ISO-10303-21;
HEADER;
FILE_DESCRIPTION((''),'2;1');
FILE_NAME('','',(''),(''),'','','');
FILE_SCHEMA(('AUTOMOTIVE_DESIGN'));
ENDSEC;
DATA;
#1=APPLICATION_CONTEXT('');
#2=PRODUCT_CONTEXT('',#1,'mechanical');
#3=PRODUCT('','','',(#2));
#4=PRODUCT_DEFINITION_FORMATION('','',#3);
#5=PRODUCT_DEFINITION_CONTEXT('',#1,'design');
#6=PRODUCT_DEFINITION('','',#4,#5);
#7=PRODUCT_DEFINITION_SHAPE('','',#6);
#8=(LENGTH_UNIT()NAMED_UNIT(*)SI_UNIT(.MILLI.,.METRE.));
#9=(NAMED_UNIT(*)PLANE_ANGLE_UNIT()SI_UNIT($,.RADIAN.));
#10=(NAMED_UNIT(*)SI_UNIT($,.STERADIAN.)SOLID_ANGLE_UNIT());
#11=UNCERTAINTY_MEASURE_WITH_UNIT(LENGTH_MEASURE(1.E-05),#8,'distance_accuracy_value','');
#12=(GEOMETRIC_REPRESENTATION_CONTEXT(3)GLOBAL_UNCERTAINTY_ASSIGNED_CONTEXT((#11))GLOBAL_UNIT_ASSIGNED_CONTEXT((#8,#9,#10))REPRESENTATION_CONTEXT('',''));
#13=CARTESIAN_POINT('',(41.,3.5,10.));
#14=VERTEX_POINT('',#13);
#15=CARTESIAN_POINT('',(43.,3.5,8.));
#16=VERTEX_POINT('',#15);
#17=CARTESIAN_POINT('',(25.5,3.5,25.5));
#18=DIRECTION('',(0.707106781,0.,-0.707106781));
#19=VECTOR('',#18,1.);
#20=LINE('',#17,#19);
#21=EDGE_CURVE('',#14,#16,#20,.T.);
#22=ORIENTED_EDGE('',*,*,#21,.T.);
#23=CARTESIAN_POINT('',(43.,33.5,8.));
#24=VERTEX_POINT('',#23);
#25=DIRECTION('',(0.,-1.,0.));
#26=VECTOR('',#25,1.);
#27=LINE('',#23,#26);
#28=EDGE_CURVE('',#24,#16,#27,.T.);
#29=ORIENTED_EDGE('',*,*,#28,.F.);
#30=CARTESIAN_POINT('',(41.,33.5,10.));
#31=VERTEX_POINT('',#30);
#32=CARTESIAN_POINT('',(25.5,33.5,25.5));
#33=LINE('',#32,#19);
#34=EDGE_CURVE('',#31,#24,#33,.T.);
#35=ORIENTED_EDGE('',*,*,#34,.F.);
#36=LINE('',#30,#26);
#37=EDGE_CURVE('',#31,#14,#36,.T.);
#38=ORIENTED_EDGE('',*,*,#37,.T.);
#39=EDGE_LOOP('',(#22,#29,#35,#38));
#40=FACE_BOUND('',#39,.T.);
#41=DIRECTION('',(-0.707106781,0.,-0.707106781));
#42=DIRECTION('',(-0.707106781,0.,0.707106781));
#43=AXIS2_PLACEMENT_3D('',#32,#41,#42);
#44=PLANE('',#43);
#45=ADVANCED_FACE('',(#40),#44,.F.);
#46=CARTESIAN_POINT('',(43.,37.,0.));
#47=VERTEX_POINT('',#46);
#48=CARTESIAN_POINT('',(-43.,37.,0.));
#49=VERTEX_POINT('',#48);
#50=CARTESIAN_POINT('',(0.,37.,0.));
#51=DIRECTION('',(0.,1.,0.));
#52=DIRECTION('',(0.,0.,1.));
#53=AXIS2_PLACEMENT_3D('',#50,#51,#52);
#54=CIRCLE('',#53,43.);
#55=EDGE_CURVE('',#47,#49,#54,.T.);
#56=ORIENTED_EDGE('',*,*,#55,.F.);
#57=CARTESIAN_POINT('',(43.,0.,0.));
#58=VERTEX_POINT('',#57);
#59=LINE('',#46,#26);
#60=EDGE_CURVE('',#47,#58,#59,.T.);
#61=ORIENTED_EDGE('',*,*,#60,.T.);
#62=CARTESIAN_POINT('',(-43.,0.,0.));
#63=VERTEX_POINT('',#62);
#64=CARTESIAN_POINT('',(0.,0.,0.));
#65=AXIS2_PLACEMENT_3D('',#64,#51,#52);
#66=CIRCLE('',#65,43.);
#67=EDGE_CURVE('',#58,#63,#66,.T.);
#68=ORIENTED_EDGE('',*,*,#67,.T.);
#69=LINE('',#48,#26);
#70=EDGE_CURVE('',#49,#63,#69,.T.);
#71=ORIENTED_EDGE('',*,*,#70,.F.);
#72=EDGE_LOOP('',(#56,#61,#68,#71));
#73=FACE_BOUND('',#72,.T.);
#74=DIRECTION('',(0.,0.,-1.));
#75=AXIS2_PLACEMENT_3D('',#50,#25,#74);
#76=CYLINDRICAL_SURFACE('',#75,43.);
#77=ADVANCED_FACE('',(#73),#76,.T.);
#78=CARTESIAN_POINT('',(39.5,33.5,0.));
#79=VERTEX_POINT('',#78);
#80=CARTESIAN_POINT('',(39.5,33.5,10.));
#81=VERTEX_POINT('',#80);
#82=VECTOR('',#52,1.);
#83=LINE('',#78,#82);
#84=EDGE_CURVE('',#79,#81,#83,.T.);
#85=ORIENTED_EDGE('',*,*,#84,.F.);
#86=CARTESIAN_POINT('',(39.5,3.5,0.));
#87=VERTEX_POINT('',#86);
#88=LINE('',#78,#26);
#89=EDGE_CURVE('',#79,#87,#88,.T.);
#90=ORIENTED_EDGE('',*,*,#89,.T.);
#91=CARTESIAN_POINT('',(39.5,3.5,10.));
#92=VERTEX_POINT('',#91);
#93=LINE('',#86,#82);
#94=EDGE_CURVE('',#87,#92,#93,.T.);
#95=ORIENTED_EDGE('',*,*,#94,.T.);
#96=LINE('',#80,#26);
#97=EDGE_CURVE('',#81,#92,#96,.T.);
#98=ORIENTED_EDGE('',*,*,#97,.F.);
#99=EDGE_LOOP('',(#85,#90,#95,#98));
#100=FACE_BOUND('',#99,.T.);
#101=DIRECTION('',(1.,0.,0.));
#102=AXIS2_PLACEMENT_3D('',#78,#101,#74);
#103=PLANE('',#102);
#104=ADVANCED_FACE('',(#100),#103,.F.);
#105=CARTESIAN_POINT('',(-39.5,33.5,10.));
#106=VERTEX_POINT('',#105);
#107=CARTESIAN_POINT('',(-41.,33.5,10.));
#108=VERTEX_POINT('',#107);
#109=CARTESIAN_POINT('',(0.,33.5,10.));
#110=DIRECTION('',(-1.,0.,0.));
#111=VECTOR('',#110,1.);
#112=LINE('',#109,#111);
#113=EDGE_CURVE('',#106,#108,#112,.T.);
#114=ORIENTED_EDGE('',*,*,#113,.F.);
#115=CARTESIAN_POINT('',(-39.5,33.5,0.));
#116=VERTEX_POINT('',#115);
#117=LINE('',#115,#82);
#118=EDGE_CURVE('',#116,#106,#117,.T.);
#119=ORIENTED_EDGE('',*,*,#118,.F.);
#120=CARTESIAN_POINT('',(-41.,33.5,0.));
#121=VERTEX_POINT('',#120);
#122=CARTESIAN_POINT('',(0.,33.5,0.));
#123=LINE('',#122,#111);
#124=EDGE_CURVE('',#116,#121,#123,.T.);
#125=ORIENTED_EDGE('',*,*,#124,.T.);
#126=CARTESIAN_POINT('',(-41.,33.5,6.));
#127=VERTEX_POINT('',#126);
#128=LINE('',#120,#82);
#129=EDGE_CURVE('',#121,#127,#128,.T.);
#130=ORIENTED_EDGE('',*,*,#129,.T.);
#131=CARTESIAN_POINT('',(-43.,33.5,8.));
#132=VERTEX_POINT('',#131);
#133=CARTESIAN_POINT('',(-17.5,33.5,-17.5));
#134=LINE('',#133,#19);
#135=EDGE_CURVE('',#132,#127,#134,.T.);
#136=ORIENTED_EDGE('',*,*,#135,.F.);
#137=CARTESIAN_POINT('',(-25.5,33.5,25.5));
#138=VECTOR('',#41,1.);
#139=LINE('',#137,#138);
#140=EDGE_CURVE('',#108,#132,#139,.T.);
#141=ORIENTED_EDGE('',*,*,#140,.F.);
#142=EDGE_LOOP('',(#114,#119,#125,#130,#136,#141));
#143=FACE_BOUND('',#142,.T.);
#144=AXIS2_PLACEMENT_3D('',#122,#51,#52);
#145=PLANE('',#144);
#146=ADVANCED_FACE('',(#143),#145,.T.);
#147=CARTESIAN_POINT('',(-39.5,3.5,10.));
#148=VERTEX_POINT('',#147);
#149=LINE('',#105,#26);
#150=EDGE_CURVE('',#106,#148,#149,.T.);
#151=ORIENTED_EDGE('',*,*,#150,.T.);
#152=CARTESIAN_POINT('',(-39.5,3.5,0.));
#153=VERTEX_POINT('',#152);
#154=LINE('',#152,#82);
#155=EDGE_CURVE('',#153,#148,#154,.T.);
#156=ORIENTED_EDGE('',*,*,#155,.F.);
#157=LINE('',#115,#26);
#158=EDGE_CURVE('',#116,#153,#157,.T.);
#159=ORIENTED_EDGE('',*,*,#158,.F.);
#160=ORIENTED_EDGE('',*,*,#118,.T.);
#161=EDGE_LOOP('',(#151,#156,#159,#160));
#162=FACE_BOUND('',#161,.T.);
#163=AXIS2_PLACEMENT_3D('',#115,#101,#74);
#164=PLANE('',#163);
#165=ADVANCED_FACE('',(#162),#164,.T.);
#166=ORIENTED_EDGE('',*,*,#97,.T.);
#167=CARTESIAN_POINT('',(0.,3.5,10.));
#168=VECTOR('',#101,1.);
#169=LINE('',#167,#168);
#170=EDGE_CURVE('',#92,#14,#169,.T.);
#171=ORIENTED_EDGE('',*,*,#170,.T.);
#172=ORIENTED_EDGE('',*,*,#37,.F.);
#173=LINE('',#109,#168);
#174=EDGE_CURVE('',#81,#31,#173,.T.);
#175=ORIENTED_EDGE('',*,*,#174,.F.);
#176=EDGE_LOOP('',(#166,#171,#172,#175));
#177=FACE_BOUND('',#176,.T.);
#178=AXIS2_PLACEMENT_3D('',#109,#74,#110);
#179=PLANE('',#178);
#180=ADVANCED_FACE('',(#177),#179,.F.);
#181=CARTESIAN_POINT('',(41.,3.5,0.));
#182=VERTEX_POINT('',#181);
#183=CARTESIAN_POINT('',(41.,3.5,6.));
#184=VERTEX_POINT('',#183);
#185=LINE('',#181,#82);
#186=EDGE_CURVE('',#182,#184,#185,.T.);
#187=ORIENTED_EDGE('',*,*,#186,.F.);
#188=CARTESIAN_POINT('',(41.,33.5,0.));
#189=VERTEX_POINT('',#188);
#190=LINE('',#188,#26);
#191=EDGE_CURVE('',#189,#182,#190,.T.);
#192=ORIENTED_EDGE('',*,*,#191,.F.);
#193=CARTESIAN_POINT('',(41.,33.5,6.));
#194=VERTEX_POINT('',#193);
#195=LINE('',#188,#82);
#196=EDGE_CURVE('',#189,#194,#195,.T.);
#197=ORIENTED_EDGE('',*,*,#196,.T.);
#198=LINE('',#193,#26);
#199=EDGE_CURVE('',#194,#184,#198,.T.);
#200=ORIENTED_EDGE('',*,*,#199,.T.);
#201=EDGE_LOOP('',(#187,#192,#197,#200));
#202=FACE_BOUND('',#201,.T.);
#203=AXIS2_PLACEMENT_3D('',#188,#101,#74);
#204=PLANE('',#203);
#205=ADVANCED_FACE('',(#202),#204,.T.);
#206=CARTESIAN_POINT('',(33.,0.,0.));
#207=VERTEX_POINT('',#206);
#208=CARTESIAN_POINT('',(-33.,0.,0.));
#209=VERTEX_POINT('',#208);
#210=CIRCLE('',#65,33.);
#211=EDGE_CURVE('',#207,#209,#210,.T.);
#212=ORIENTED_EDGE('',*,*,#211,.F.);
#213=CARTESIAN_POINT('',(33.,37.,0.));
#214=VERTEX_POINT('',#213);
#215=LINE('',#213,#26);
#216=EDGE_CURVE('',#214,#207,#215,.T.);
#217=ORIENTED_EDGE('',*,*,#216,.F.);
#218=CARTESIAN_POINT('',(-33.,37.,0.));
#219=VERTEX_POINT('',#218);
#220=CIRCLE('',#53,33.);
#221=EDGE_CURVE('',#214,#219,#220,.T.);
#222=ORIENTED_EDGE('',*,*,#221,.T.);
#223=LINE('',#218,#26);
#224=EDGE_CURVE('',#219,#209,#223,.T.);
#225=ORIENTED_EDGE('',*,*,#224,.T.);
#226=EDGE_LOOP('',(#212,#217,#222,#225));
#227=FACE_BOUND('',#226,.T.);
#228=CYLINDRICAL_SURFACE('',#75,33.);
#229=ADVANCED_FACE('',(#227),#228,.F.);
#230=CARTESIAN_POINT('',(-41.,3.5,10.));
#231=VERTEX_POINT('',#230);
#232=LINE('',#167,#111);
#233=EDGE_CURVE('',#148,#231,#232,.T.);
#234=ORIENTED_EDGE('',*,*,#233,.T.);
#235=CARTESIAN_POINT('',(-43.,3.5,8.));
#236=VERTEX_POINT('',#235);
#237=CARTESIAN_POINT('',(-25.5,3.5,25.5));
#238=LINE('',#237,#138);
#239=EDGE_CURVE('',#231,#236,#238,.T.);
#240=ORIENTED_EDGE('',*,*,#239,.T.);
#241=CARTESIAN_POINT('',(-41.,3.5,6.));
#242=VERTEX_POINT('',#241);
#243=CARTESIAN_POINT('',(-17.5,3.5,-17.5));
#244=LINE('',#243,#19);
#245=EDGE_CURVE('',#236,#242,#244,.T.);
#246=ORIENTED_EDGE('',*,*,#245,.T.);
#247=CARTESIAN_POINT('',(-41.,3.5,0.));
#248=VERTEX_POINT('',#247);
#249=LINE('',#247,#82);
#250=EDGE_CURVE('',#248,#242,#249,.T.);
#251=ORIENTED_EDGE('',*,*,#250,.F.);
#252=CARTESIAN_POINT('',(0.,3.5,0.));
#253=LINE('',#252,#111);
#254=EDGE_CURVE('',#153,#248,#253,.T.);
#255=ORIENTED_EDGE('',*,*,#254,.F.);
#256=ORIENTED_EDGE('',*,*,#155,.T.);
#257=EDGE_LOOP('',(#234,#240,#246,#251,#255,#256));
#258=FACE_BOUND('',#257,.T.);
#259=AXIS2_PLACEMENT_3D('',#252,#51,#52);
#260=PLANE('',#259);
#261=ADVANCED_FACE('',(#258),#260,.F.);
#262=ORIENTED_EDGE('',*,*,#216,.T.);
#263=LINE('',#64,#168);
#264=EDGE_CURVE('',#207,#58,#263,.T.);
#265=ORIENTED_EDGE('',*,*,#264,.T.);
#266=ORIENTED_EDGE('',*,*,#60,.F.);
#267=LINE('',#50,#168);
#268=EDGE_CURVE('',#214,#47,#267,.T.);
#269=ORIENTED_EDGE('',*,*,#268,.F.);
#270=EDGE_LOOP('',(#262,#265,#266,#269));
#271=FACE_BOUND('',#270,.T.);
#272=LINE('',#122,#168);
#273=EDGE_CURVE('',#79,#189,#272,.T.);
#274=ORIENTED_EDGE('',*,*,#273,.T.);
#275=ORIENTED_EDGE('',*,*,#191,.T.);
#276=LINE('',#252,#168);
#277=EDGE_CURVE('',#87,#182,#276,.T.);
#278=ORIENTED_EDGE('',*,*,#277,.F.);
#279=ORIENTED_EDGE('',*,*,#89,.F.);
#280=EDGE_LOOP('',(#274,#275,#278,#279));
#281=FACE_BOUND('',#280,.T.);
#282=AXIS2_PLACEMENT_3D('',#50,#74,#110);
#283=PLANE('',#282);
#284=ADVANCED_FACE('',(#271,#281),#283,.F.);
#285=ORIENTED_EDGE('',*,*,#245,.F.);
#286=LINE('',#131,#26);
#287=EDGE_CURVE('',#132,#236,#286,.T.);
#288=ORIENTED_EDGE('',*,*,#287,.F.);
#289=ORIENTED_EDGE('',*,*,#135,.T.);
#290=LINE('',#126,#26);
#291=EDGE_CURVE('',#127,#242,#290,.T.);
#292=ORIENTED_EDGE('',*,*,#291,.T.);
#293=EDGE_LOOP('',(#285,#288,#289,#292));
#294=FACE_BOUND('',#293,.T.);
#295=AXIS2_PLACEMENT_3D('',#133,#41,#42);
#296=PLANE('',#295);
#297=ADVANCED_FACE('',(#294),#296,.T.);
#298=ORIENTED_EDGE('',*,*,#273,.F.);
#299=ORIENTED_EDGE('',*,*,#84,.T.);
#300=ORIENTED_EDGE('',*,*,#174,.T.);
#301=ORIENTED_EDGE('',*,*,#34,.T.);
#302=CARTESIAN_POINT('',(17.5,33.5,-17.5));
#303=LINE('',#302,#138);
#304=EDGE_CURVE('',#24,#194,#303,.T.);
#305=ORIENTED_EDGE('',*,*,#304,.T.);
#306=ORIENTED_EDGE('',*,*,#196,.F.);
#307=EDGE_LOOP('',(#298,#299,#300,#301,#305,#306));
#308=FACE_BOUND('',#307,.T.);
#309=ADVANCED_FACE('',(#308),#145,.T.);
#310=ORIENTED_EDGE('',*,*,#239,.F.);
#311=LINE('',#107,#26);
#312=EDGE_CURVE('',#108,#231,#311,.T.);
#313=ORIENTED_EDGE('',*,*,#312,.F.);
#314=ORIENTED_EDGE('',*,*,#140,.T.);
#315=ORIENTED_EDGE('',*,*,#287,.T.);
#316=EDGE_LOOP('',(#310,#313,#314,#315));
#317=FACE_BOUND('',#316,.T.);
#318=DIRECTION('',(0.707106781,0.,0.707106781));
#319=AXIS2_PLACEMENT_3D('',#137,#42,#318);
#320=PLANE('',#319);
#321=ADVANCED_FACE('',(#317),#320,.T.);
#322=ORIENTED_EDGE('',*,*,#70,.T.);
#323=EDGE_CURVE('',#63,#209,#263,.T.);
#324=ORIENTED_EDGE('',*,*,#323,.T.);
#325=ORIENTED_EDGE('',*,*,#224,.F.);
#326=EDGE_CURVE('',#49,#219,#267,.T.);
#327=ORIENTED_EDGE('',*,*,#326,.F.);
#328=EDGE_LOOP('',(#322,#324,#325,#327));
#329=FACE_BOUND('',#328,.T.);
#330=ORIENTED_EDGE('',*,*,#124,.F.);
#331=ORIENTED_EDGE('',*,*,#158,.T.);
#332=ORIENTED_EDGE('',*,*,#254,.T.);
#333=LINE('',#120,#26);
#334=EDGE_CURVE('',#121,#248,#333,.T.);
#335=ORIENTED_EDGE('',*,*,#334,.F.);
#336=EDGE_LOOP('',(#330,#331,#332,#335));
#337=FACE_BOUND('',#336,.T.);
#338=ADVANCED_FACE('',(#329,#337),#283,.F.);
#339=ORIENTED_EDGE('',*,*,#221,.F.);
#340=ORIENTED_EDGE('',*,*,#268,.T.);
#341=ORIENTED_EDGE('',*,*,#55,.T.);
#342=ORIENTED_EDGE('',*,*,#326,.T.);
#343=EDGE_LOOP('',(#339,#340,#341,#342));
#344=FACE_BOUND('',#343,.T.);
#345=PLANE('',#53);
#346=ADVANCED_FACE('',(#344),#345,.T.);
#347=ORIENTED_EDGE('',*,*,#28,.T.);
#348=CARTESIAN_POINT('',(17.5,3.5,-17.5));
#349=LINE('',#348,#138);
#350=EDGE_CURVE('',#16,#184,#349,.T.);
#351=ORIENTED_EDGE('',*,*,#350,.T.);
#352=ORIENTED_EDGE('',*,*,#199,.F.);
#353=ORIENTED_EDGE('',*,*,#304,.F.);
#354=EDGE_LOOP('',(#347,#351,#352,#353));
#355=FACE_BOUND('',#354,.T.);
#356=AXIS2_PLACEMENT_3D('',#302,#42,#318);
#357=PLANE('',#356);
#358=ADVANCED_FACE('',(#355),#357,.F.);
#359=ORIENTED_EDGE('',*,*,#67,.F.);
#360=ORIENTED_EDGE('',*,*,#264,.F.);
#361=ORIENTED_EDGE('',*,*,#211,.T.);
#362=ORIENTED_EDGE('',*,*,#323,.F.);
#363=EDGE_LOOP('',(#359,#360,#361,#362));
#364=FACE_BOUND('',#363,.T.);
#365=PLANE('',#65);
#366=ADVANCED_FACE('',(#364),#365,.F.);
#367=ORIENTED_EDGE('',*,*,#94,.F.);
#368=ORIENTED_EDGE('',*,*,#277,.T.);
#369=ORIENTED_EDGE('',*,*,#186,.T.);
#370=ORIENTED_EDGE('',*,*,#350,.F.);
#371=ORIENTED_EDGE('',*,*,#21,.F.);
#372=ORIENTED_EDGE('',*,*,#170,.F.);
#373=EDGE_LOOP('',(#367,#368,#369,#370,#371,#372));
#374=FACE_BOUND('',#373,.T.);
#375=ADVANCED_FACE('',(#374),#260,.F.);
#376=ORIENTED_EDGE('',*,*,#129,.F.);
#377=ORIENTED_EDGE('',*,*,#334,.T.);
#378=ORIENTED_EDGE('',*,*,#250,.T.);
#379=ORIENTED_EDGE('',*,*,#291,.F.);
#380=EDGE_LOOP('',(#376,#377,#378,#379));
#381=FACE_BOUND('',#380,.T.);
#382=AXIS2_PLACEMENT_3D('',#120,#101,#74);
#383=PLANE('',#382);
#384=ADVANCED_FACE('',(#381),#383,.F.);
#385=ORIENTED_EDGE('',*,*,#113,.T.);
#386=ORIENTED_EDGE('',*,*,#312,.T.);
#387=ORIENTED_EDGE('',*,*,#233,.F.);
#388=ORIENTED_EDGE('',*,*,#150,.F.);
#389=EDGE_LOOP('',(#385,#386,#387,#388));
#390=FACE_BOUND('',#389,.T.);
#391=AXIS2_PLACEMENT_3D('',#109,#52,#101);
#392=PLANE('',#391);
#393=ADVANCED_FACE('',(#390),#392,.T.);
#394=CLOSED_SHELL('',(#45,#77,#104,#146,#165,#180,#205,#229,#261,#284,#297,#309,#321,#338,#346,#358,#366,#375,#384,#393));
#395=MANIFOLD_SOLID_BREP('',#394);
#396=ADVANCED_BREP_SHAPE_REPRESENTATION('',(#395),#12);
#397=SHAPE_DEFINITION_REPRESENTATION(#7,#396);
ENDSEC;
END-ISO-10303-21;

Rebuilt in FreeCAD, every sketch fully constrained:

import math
import FreeCAD as App
import Part
import Sketcher

V = App.Vector
Q = App.Units.Quantity


def add_polygon(sketch, points):
    """Adds a closed chain of lines whose ends are joined by coincident constraints."""
    first, n = sketch.GeometryCount, len(points)
    for a, b in zip(points, points[1:] + points[:1]):
        sketch.addGeometry(Part.LineSegment(App.Vector(*a, 0), App.Vector(*b, 0)), False)
    for i in range(n):
        sketch.addConstraint(Sketcher.Constraint("Coincident", first + i, 2, first + (i + 1) % n, 1))

doc = App.newDocument("Part")
body = doc.addObject("PartDesign::Body", "Body")

sketch1 = body.newObject("Sketcher::SketchObject", "Sketch")
sketch1.AttachmentSupport = (doc.getObject("XZ_Plane"), [""])
sketch1.MapMode = "FlatFace"
sketch1.addGeometry(Part.ArcOfCircle(Part.Circle(V(0, 0, 0), V(0, 0, 1), 33), math.radians(180), math.radians(360)), False)
sketch1.addGeometry(Part.LineSegment(V(33, 0, 0), V(43, 0, 0)), False)
sketch1.addGeometry(Part.ArcOfCircle(Part.Circle(V(0, 0, 0), V(0, 0, 1), 43), math.radians(180), math.radians(360)), False)
sketch1.addGeometry(Part.LineSegment(V(-43, 0, 0), V(-33, 0, 0)), False)
sketch1.addConstraint(Sketcher.Constraint("Coincident", 0, 2, 1, 1))
sketch1.addConstraint(Sketcher.Constraint("Coincident", 1, 2, 2, 2))
sketch1.addConstraint(Sketcher.Constraint("Coincident", 2, 1, 3, 1))
sketch1.addConstraint(Sketcher.Constraint("Coincident", 3, 2, 0, 1))
sketch1.addConstraint(Sketcher.Constraint("Horizontal", 1))
sketch1.addConstraint(Sketcher.Constraint("Horizontal", 3))
sketch1.addConstraint(Sketcher.Constraint("Coincident", 0, 3, -1, 1))
sketch1.addConstraint(Sketcher.Constraint("Coincident", 2, 3, -1, 1))
sketch1.addConstraint(Sketcher.Constraint("PointOnObject", 0, 2, -1))
sketch1.addConstraint(Sketcher.Constraint("PointOnObject", 2, 1, -1))
sketch1.addConstraint(Sketcher.Constraint("Radius", 0, Q("33 mm")))
sketch1.addConstraint(Sketcher.Constraint("Radius", 2, Q("43 mm")))
pad1 = body.newObject("PartDesign::Pad", "Pad")
pad1.Profile = sketch1
pad1.Length = 37
pad1.Reversed = True

sketch2 = body.newObject("Sketcher::SketchObject", "Sketch001")
sketch2.AttachmentSupport = (doc.getObject("XZ_Plane"), [""])
sketch2.MapMode = "FlatFace"
sketch2.AttachmentOffset = App.Placement(V(0, 0, -18.5), App.Rotation())
add_polygon(sketch2, [(-41, 0), (-41, 6), (-43, 8), (-41, 10), (-39.5, 10), (-39.5, 0)])
sketch2.addConstraint(Sketcher.Constraint("Vertical", 0))
sketch2.addConstraint(Sketcher.Constraint("Horizontal", 3))
sketch2.addConstraint(Sketcher.Constraint("Vertical", 4))
sketch2.addConstraint(Sketcher.Constraint("Horizontal", 5))
sketch2.addConstraint(Sketcher.Constraint("PointOnObject", 4, 2, -1))
sketch2.addConstraint(Sketcher.Constraint("Perpendicular", 1, 2))
sketch2.addConstraint(Sketcher.Constraint("Vertical", 0, 2, 2, 2))
sketch2.addConstraint(Sketcher.Constraint("Equal", 1, 2))
sketch2.addConstraint(Sketcher.Constraint("DistanceY", 0, 1, 0, 2, Q("6 mm")))
sketch2.addConstraint(Sketcher.Constraint("DistanceY", 4, 2, 4, 1, Q("10 mm")))
sketch2.addConstraint(Sketcher.Constraint("DistanceX", 3, 1, 3, 2, Q("1.5 mm")))
sketch2.addConstraint(Sketcher.Constraint("DistanceX", 0, 2, -1, 1, Q("41 mm")))
pad2 = body.newObject("PartDesign::Pad", "Pad001")
pad2.Profile = sketch2
pad2.Length = 30
pad2.Midplane = True
doc.recompute()

mirrored = body.newObject("PartDesign::Mirrored", "Mirrored")
mirrored.Originals = [pad2]
mirrored.MirrorPlane = (doc.getObject("YZ_Plane"), [""])
body.Tip = mirrored

doc.recompute()
